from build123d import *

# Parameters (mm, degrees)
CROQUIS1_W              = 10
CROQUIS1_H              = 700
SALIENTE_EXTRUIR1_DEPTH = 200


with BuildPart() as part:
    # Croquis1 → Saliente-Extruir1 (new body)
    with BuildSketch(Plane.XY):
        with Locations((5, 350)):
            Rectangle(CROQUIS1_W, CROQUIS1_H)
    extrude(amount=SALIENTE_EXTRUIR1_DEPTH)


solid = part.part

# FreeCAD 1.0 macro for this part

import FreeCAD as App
import Part
import Sketcher


def add_polygon(sketch, points):
    """Adds a closed chain of lines whose ends are joined by coincident constraints."""
    first, n = sketch.GeometryCount, len(points)
    for a, b in zip(points, points[1:] + points[:1]):
        sketch.addGeometry(Part.LineSegment(App.Vector(*a, 0), App.Vector(*b, 0)), False)
    for i in range(n):
        sketch.addConstraint(Sketcher.Constraint("Coincident", first + i, 2, first + (i + 1) % n, 1))

doc = App.newDocument("Part")
params = doc.addObject("Spreadsheet::Sheet", "Params")
for row, (alias, value) in enumerate([
    ("sketch1_width", "10 mm"),
    ("sketch1_height", "700 mm"),
    ("pad1_length", "200 mm"),
], start=1):
    params.set(f"A{row}", alias)
    params.set(f"B{row}", "=" + value)
    params.setAlias(f"B{row}", alias)

body = doc.addObject("PartDesign::Body", "Body")

# Sketch on XY plane
sketch1 = body.newObject("Sketcher::SketchObject", "Sketch")
sketch1.AttachmentSupport = (doc.getObject("XY_Plane"), [""])
sketch1.MapMode = "FlatFace"
add_polygon(sketch1, [(0, 700), (0, 0), (10, 0), (10, 700)])  # lines 0-3
sketch1.addConstraint([
    Sketcher.Constraint("Vertical", 0),
    Sketcher.Constraint("Horizontal", 1),
    Sketcher.Constraint("Vertical", 2),
    Sketcher.Constraint("Horizontal", 3),
    Sketcher.Constraint("Coincident", 0, 2, -1, 1),
    Sketcher.Constraint("DistanceX", 1, 1, 1, 2, 10.0),
    Sketcher.Constraint("DistanceY", 0, 2, 0, 1, 700.0),
])
sketch1.setExpression("Constraints[9]", "Params.sketch1_width")
sketch1.setExpression("Constraints[10]", "Params.sketch1_height")
pad1 = body.newObject("PartDesign::Pad", "Pad")
pad1.Profile = sketch1
pad1.setExpression("Length", "Params.pad1_length")

doc.recompute()
